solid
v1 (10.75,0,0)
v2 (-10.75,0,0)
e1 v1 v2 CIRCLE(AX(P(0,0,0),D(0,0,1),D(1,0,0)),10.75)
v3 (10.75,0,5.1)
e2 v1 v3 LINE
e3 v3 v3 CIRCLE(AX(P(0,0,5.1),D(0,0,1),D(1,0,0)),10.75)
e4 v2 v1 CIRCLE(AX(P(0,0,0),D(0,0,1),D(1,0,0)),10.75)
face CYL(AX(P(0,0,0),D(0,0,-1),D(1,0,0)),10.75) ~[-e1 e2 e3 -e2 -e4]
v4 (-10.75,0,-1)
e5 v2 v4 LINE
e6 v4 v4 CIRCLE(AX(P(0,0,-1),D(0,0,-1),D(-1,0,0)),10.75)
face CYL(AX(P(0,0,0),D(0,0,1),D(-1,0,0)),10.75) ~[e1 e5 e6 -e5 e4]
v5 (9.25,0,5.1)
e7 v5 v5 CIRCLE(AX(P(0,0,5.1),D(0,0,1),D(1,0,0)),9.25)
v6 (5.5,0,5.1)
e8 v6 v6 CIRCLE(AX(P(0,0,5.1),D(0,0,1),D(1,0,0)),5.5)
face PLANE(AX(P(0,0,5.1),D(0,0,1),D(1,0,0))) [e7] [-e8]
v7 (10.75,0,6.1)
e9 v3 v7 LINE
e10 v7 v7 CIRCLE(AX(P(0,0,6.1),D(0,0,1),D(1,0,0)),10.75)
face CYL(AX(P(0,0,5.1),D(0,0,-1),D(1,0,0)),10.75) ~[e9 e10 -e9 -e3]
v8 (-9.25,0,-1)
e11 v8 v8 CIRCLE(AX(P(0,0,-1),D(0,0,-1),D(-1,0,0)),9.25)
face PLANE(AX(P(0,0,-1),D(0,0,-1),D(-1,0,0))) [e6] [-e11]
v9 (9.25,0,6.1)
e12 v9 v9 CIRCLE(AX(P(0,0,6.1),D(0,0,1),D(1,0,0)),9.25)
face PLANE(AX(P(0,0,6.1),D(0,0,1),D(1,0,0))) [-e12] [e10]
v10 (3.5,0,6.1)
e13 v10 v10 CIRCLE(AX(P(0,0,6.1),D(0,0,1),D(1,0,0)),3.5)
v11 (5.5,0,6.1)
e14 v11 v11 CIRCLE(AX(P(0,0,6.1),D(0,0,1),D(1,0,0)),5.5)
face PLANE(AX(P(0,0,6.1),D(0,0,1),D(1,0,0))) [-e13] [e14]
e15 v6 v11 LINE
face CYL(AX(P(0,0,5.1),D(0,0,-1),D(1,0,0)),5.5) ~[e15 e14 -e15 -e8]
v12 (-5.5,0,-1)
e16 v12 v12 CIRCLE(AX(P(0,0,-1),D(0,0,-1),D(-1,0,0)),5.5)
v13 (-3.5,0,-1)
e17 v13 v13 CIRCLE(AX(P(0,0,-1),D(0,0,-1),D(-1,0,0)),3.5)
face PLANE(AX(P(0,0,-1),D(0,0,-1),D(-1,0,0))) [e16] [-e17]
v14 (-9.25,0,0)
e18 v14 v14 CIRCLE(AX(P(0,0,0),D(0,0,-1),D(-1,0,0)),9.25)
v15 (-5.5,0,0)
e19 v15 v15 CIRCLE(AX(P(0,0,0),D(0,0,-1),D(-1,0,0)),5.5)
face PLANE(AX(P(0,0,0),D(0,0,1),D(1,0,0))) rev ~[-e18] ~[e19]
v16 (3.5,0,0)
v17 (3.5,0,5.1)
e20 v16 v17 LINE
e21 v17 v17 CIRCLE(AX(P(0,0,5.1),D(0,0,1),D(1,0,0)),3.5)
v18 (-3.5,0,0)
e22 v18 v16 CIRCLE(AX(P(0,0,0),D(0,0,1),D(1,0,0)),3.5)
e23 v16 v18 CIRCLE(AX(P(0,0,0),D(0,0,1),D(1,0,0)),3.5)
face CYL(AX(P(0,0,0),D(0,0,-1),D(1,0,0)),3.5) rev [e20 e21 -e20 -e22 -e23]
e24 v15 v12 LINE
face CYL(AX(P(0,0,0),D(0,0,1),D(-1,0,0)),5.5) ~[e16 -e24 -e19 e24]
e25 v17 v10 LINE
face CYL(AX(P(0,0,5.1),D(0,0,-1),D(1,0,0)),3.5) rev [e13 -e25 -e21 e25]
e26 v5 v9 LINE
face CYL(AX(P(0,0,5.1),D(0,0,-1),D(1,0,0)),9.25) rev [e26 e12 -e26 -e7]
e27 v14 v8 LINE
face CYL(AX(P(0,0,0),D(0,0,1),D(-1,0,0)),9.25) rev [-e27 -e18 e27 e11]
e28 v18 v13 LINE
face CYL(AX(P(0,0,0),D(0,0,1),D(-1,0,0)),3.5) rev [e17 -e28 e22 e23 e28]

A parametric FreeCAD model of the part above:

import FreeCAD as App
import Part
import Sketcher

V = App.Vector
Q = App.Units.Quantity

doc = App.newDocument("Part")
body = doc.addObject("PartDesign::Body", "Body")

# Sketch on XY plane
sketch1 = body.newObject("Sketcher::SketchObject", "Sketch")
sketch1.AttachmentSupport = (doc.getObject("XY_Plane"), [""])
sketch1.MapMode = "FlatFace"
sketch1.addGeometry(Part.Circle(V(0, 0, 0), V(0, 0, 1), 10.8), False)
sketch1.addGeometry(Part.Circle(V(0, 0, 0), V(0, 0, 1), 3.5), False)
sketch1.addConstraint(Sketcher.Constraint("Coincident", 0, 3, -1, 1))
sketch1.addConstraint(Sketcher.Constraint("Coincident", 1, 3, -1, 1))
sketch1.addConstraint(Sketcher.Constraint("Diameter", 1, Q("7 mm")))
sketch1.addConstraint(Sketcher.Constraint("Diameter", 0, Q("21.5 mm")))
pad1 = body.newObject("PartDesign::Pad", "Pad")
pad1.Profile = sketch1
pad1.Length = 5.1

# Sketch on XY plane
sketch2 = body.newObject("Sketcher::SketchObject", "Sketch001")
sketch2.AttachmentSupport = (doc.getObject("XY_Plane"), [""])
sketch2.MapMode = "FlatFace"
sketch2.addGeometry(Part.Circle(V(0, 0, 0), V(0, 0, 1), 5.5), False)
sketch2.addGeometry(Part.Circle(V(0, 0, 0), V(0, 0, 1), 3.5), False)
sketch2.addGeometry(Part.Circle(V(0, 0, 0), V(0, 0, 1), 10.8), False)
sketch2.addGeometry(Part.Circle(V(0, 0, 0), V(0, 0, 1), 9.2), False)
sketch2.addConstraint(Sketcher.Constraint("Coincident", 0, 3, -1, 1))
sketch2.addConstraint(Sketcher.Constraint("Coincident", 1, 3, -1, 1))
sketch2.addConstraint(Sketcher.Constraint("Coincident", 2, 3, -1, 1))
sketch2.addConstraint(Sketcher.Constraint("Coincident", 3, 3, -1, 1))
sketch2.addConstraint(Sketcher.Constraint("Diameter", 0, Q("11 mm")))
sketch2.addConstraint(Sketcher.Constraint("Diameter", 1, Q("7 mm")))
sketch2.addConstraint(Sketcher.Constraint("Diameter", 2, Q("21.5 mm")))
sketch2.addConstraint(Sketcher.Constraint("Diameter", 3, Q("18.5 mm")))
pad2 = body.newObject("PartDesign::Pad", "Pad001")
pad2.Profile = sketch2
pad2.Length = 1
pad2.Reversed = True

# Sketch on XY plane
sketch3 = body.newObject("Sketcher::SketchObject", "Sketch002")
sketch3.AttachmentSupport = (doc.getObject("XY_Plane"), [""])
sketch3.MapMode = "FlatFace"
sketch3.AttachmentOffset = App.Placement(V(0, 0, 5.1), App.Rotation())
sketch3.addGeometry(Part.Circle(V(0, 0, 0), V(0, 0, 1), 10.8), False)
sketch3.addGeometry(Part.Circle(V(0, 0, 0), V(0, 0, 1), 9.2), False)
sketch3.addGeometry(Part.Circle(V(0, 0, 0), V(0, 0, 1), 5.5), False)
sketch3.addGeometry(Part.Circle(V(0, 0, 0), V(0, 0, 1), 3.5), False)
sketch3.addConstraint(Sketcher.Constraint("Coincident", 0, 3, -1, 1))
sketch3.addConstraint(Sketcher.Constraint("Coincident", 1, 3, -1, 1))
sketch3.addConstraint(Sketcher.Constraint("Coincident", 2, 3, -1, 1))
sketch3.addConstraint(Sketcher.Constraint("Coincident", 3, 3, -1, 1))
sketch3.addConstraint(Sketcher.Constraint("Diameter", 2, Q("11 mm")))
sketch3.addConstraint(Sketcher.Constraint("Diameter", 1, Q("18.5 mm")))
sketch3.addConstraint(Sketcher.Constraint("Diameter", 3, Q("7 mm")))
sketch3.addConstraint(Sketcher.Constraint("Diameter", 0, Q("21.5 mm")))
pad3 = body.newObject("PartDesign::Pad", "Pad002")
pad3.Profile = sketch3
pad3.Length = 1

doc.recompute()
